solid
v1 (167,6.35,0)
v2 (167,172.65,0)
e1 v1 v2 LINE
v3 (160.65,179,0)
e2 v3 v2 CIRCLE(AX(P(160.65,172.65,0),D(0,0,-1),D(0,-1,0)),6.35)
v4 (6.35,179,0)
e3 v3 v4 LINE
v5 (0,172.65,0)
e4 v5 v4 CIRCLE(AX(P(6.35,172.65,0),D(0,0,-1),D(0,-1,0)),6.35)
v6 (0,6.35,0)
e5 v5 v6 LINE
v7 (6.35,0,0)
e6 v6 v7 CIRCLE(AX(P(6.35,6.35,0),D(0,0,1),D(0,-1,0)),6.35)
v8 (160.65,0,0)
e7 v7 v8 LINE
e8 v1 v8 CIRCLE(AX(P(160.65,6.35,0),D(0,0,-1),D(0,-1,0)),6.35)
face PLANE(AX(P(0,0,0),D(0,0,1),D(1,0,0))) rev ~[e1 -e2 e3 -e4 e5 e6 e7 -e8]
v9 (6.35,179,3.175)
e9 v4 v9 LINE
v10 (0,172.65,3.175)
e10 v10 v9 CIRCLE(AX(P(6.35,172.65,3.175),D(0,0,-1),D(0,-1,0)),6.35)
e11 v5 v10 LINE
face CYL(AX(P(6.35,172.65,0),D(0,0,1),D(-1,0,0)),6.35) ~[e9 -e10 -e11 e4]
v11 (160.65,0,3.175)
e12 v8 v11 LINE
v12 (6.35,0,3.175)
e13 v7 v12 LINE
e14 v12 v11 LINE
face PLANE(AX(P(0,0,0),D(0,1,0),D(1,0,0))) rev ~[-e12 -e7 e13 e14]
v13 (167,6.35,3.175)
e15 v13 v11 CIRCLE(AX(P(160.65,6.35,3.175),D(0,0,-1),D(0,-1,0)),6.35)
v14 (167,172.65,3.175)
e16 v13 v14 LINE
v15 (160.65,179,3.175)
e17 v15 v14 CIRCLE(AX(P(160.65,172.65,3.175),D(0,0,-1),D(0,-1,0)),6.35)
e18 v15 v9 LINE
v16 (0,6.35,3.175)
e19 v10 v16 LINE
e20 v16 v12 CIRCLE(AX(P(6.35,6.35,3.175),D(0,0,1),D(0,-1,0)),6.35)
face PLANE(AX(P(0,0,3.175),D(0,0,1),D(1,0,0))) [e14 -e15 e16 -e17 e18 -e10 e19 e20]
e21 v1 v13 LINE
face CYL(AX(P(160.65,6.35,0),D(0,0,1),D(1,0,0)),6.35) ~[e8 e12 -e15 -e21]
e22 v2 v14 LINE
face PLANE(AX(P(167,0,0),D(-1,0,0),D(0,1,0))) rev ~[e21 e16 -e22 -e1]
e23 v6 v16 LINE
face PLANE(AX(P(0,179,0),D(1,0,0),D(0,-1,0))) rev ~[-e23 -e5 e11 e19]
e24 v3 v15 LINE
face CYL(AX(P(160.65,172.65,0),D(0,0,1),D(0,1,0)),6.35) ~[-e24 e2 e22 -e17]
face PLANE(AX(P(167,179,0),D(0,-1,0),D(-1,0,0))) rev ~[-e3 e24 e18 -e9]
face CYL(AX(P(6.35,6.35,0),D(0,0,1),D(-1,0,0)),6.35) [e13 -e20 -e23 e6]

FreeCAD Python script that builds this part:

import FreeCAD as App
import Part
import Sketcher

V = App.Vector
Q = App.Units.Quantity


def edges_at(feature, points):
    """Names of the edges that pass closest to the given points."""
    edges = feature.Shape.Edges
    near = lambda p: min(range(len(edges)), key=lambda i: edges[i].distToShape(Part.Vertex(*p))[0])
    return sorted({f"Edge{near(p) + 1}" for p in points})


def add_polygon(sketch, points):
    """Adds a closed chain of lines whose ends are joined by coincident constraints."""
    first, n = sketch.GeometryCount, len(points)
    for a, b in zip(points, points[1:] + points[:1]):
        sketch.addGeometry(Part.LineSegment(App.Vector(*a, 0), App.Vector(*b, 0)), False)
    for i in range(n):
        sketch.addConstraint(Sketcher.Constraint("Coincident", first + i, 2, first + (i + 1) % n, 1))

doc = App.newDocument("Part")
params = doc.addObject("Spreadsheet::Sheet", "Params")
for row, (alias, value) in enumerate([
    ("pad1_length", "0.125 in"),
    ("fillet_radius", "0.25 in"),
], start=1):
    params.set(f"A{row}", alias)
    params.set(f"B{row}", "=" + value)
    params.setAlias(f"B{row}", alias)

body = doc.addObject("PartDesign::Body", "Body")

# Sketch on XY plane
sketch1 = doc.addObject("Sketcher::SketchObject", "Sketch")
body.addObject(sketch1)
sketch1.AttachmentSupport = (doc.XY_Plane, [""])
sketch1.MapMode = "FlatFace"
add_polygon(sketch1, [(0, 179), (0, 0), (167, 0), (167, 179)])  # lines 0-3
sketch1.addConstraint(Sketcher.Constraint("Vertical", 0))
sketch1.addConstraint(Sketcher.Constraint("Horizontal", 1))
sketch1.addConstraint(Sketcher.Constraint("Vertical", 2))
sketch1.addConstraint(Sketcher.Constraint("Horizontal", 3))
sketch1.addConstraint(Sketcher.Constraint("Coincident", 0, 2, -1, 1))
sketch1.addConstraint(Sketcher.Constraint("DistanceX", 1, 1, 1, 2, Q("6.5748 in")))
sketch1.addConstraint(Sketcher.Constraint("DistanceY", 0, 2, 0, 1, Q("179 mm")))
pad1 = doc.addObject("PartDesign::Pad", "Pad")
body.addObject(pad1)
pad1.Profile = sketch1
pad1.setExpression("Length", "Params.pad1_length")
doc.recompute()

fillet = doc.addObject("PartDesign::Fillet", "Fillet")
body.addObject(fillet)
fillet.Base = (pad1, edges_at(pad1, [
    (167, 179, 1.587),
    (0, 179, 1.587),
    (167, 0, 1.587),
    (0, 0, 1.587),
]))
fillet.setExpression("Radius", "Params.fillet_radius")

doc.recompute()
